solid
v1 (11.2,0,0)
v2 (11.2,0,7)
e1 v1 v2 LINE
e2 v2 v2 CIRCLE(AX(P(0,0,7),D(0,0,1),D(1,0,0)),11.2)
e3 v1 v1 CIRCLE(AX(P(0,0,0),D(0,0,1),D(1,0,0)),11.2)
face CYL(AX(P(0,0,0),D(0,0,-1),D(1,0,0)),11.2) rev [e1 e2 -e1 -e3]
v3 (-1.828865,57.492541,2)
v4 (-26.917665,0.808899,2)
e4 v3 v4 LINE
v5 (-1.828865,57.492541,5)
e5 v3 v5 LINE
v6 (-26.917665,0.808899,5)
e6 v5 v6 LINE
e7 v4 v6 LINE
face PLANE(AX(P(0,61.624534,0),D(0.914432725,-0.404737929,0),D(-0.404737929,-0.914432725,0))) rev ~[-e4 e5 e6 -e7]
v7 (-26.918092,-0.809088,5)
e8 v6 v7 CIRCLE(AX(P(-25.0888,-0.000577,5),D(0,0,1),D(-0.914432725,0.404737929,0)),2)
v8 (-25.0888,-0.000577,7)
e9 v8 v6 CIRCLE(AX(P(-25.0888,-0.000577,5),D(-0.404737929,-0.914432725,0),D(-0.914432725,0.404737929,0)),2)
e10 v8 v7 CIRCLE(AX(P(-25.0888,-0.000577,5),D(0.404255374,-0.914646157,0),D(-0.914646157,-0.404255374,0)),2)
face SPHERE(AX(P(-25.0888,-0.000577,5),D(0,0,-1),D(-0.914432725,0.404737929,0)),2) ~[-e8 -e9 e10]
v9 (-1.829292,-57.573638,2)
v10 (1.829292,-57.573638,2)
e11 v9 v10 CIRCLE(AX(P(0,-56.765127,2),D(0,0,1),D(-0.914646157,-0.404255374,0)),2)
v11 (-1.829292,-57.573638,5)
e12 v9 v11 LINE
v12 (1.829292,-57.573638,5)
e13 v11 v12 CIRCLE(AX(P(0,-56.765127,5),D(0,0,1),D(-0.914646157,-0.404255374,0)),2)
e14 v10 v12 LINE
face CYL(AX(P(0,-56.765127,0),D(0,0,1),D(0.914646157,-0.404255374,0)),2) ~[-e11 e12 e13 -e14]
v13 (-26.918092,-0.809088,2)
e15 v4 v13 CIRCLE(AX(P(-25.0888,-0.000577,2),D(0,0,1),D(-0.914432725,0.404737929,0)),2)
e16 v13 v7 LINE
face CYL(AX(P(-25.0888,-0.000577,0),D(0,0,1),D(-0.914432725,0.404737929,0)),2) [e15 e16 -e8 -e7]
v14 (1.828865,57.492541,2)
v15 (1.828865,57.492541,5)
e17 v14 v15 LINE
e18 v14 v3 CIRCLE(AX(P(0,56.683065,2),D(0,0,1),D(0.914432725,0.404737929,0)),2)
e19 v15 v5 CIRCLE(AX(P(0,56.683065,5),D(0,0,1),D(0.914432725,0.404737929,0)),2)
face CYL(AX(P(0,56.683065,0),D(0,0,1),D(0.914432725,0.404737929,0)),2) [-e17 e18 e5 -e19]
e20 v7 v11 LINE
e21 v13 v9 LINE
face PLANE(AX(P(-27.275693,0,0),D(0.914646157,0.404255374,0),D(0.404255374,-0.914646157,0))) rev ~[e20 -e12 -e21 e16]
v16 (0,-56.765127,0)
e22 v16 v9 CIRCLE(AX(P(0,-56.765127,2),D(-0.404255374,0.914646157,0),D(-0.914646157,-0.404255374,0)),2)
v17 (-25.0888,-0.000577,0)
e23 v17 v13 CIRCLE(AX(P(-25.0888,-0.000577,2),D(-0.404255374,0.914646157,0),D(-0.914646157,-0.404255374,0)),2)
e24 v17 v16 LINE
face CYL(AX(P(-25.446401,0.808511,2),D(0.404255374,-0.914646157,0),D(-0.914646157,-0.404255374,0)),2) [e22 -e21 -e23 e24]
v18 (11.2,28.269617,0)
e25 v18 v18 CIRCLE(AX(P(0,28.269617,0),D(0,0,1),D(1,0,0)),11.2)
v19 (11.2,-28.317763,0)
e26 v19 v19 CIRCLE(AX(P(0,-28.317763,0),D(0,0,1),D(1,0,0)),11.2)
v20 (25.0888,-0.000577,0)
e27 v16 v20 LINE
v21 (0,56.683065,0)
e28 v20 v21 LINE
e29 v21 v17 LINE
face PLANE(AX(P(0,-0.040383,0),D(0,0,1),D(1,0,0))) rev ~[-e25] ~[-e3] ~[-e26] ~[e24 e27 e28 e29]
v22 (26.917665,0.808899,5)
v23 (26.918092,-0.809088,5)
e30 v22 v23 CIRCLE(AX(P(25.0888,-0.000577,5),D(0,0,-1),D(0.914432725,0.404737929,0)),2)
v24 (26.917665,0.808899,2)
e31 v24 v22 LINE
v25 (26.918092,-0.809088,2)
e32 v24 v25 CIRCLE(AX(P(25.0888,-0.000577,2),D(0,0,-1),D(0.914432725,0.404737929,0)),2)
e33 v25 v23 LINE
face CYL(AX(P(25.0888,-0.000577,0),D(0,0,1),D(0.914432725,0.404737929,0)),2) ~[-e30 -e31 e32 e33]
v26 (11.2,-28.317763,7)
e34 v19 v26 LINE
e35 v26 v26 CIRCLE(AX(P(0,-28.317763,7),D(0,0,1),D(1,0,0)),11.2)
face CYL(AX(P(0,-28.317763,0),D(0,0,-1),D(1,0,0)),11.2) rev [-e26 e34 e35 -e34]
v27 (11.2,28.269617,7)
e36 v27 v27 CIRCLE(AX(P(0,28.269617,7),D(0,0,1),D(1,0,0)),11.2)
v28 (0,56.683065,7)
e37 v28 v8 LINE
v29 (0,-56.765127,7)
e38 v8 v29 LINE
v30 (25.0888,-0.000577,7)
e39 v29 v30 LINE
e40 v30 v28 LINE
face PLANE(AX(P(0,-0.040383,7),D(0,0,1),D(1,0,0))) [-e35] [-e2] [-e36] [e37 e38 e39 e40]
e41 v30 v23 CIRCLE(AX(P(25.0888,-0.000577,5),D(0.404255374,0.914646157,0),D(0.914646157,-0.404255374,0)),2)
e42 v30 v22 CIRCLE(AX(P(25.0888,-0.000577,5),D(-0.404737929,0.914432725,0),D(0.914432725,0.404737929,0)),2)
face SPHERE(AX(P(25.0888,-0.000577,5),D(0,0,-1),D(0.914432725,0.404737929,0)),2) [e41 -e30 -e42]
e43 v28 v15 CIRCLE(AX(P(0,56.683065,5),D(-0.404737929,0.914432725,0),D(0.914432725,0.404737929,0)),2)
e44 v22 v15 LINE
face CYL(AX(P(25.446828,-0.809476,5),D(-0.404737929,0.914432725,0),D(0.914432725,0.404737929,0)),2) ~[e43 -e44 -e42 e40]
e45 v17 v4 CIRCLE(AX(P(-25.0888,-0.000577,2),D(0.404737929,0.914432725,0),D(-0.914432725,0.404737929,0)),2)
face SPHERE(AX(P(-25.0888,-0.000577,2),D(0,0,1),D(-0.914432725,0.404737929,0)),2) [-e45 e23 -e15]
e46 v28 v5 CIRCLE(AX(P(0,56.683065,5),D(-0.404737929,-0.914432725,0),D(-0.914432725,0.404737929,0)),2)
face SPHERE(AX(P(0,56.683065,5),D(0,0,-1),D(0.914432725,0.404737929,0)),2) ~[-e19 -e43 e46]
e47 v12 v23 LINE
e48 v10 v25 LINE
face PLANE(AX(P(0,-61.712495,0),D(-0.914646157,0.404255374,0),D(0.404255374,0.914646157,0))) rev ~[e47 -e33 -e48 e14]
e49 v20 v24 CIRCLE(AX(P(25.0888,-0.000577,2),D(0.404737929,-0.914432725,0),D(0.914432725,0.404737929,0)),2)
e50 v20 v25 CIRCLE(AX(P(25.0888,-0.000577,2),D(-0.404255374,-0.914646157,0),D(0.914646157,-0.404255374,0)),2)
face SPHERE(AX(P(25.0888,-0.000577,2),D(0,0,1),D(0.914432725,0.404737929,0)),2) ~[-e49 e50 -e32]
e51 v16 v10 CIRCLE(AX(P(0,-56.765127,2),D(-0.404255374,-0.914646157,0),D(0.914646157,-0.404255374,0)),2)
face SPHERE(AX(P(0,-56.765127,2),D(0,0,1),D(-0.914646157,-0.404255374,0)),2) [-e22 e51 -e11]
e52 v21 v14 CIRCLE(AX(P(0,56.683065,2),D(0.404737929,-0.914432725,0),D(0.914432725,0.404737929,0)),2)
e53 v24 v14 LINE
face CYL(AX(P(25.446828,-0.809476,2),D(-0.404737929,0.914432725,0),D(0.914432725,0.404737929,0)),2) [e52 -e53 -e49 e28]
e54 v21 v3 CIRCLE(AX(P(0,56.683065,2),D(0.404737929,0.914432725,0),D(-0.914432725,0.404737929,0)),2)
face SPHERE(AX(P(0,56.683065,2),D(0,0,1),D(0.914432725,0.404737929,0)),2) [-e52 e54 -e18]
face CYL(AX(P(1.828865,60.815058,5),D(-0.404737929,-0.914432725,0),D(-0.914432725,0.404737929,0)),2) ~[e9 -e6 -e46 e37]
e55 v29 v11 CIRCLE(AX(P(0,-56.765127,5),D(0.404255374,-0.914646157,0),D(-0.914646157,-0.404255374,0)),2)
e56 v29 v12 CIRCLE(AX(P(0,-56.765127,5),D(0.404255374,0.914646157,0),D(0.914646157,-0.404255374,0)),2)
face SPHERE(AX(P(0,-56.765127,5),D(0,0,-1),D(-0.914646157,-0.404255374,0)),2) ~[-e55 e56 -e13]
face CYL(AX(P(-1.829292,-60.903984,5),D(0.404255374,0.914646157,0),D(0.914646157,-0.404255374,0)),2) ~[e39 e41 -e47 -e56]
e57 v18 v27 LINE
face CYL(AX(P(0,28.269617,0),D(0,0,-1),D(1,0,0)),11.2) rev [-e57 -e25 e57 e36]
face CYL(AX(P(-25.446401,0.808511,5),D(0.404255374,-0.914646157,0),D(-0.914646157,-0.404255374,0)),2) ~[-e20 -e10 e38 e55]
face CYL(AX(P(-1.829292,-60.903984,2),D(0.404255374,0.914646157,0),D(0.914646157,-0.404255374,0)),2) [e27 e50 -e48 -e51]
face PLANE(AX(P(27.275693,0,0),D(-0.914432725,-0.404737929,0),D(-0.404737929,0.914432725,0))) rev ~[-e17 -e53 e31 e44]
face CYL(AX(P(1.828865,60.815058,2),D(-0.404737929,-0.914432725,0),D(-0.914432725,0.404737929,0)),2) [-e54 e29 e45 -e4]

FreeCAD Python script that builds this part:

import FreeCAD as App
import Part
import Sketcher
Q = App.Units.Quantity


def edges_at(feature, points):
    """Names of the edges that pass closest to the given points."""
    edges = feature.Shape.Edges
    near = lambda p: min(range(len(edges)), key=lambda i: edges[i].distToShape(Part.Vertex(*p))[0])
    return sorted({f"Edge{near(p) + 1}" for p in points})

doc = App.newDocument("Part")
params = doc.addObject("Spreadsheet::Sheet", "Params")
for row, (alias, value) in enumerate([
    ("sketch1_diameter", "22.4 mm"),
    ("pad1_length", "7 mm"),
    ("fillet_radius", "2 mm"),
], start=1):
    params.set(f"A{row}", alias)
    params.set(f"B{row}", "=" + value)
    params.setAlias(f"B{row}", alias)

body = doc.addObject("PartDesign::Body", "Body")

# Sketch on XY plane
sketch1 = body.newObject("Sketcher::SketchObject", "Sketch")
sketch1.AttachmentSupport = (doc.getObject("XY_Plane"), [""])
sketch1.MapMode = "FlatFace"
sketch1.addGeometry(Part.LineSegment(App.Vector(27, 0, 0), App.Vector(0, 62, 0)), False)
sketch1.addGeometry(Part.LineSegment(App.Vector(0, 62, 0), App.Vector(-27, 0, 0)), False)
sketch1.addGeometry(Part.LineSegment(App.Vector(-27, 0, 0), App.Vector(0, -62, 0)), False)
sketch1.addGeometry(Part.LineSegment(App.Vector(0, -62, 0), App.Vector(27, 0, 0)), False)
sketch1.addGeometry(Part.Circle(App.Vector(0, -28, 0), App.Vector(0, 0, 1), 11), False)
sketch1.addGeometry(Part.Circle(App.Vector(0, 0, 0), App.Vector(0, 0, 1), 11), False)
sketch1.addGeometry(Part.Circle(App.Vector(0, 28, 0), App.Vector(0, 0, 1), 11), False)
sketch1.addConstraint(Sketcher.Constraint("Coincident", 0, 2, 1, 1))
sketch1.addConstraint(Sketcher.Constraint("Coincident", 1, 2, 2, 1))
sketch1.addConstraint(Sketcher.Constraint("Coincident", 2, 2, 3, 1))
sketch1.addConstraint(Sketcher.Constraint("Coincident", 3, 2, 0, 1))
sketch1.addConstraint(Sketcher.Constraint("Coincident", 5, 3, -1, 1))
sketch1.addConstraint(Sketcher.Constraint("Equal", 4, 5))
sketch1.addConstraint(Sketcher.Constraint("Equal", 5, 6))
sketch1.addConstraint(Sketcher.Constraint("Symmetric", 1, 2, 3, 2, -1, 1))
sketch1.addConstraint(Sketcher.Constraint("PointOnObject", 4, 3, -2))
sketch1.addConstraint(Sketcher.Constraint("PointOnObject", 6, 3, -2))
sketch1.addConstraint(Sketcher.Constraint("PointOnObject", 0, 2, -2))
sketch1.addConstraint(Sketcher.Constraint("PointOnObject", 1, 2, -1))
sketch1.addConstraint(Sketcher.Constraint("PointOnObject", 2, 2, -2))
sketch1.addConstraint(Sketcher.Constraint("Diameter", 4, Q("22.4 mm")))
sketch1.addConstraint(Sketcher.Constraint("Distance", 0, Q("67.390998 mm")))
sketch1.addConstraint(Sketcher.Constraint("Distance", 2, Q("67.471442 mm")))
sketch1.addConstraint(Sketcher.Constraint("DistanceY", 4, 3, 6, 3, Q("56.58738 mm")))
sketch1.addConstraint(Sketcher.Constraint("DistanceY", 2, 2, 4, 3, Q("33.394732 mm")))
sketch1.addConstraint(Sketcher.Constraint("DistanceY", 2, 2, 0, 2, Q("123.337029 mm")))
sketch1.setExpression("Constraints[13]", "Params.sketch1_diameter")
pad1 = body.newObject("PartDesign::Pad", "Pad")
pad1.Profile = sketch1
pad1.setExpression("Length", "Params.pad1_length")
doc.recompute()

fillet = body.newObject("PartDesign::Fillet", "Fillet")
fillet.Base = (pad1, edges_at(pad1, [
    (27.276, 0, 3.5),
    (0, 61.625, 3.5),
    (13.638, 30.812, 0),
    (13.638, 30.812, 7),
    (13.638, -30.856, 7),
    (-27.276, 0, 3.5),
    (-13.638, 30.812, 0),
    (-13.638, 30.812, 7),
    (0, -61.712, 3.5),
    (-13.638, -30.856, 0),
    (-13.638, -30.856, 7),
    (13.638, -30.856, 0),
]))
fillet.setExpression("Radius", "Params.fillet_radius")

doc.recompute()
